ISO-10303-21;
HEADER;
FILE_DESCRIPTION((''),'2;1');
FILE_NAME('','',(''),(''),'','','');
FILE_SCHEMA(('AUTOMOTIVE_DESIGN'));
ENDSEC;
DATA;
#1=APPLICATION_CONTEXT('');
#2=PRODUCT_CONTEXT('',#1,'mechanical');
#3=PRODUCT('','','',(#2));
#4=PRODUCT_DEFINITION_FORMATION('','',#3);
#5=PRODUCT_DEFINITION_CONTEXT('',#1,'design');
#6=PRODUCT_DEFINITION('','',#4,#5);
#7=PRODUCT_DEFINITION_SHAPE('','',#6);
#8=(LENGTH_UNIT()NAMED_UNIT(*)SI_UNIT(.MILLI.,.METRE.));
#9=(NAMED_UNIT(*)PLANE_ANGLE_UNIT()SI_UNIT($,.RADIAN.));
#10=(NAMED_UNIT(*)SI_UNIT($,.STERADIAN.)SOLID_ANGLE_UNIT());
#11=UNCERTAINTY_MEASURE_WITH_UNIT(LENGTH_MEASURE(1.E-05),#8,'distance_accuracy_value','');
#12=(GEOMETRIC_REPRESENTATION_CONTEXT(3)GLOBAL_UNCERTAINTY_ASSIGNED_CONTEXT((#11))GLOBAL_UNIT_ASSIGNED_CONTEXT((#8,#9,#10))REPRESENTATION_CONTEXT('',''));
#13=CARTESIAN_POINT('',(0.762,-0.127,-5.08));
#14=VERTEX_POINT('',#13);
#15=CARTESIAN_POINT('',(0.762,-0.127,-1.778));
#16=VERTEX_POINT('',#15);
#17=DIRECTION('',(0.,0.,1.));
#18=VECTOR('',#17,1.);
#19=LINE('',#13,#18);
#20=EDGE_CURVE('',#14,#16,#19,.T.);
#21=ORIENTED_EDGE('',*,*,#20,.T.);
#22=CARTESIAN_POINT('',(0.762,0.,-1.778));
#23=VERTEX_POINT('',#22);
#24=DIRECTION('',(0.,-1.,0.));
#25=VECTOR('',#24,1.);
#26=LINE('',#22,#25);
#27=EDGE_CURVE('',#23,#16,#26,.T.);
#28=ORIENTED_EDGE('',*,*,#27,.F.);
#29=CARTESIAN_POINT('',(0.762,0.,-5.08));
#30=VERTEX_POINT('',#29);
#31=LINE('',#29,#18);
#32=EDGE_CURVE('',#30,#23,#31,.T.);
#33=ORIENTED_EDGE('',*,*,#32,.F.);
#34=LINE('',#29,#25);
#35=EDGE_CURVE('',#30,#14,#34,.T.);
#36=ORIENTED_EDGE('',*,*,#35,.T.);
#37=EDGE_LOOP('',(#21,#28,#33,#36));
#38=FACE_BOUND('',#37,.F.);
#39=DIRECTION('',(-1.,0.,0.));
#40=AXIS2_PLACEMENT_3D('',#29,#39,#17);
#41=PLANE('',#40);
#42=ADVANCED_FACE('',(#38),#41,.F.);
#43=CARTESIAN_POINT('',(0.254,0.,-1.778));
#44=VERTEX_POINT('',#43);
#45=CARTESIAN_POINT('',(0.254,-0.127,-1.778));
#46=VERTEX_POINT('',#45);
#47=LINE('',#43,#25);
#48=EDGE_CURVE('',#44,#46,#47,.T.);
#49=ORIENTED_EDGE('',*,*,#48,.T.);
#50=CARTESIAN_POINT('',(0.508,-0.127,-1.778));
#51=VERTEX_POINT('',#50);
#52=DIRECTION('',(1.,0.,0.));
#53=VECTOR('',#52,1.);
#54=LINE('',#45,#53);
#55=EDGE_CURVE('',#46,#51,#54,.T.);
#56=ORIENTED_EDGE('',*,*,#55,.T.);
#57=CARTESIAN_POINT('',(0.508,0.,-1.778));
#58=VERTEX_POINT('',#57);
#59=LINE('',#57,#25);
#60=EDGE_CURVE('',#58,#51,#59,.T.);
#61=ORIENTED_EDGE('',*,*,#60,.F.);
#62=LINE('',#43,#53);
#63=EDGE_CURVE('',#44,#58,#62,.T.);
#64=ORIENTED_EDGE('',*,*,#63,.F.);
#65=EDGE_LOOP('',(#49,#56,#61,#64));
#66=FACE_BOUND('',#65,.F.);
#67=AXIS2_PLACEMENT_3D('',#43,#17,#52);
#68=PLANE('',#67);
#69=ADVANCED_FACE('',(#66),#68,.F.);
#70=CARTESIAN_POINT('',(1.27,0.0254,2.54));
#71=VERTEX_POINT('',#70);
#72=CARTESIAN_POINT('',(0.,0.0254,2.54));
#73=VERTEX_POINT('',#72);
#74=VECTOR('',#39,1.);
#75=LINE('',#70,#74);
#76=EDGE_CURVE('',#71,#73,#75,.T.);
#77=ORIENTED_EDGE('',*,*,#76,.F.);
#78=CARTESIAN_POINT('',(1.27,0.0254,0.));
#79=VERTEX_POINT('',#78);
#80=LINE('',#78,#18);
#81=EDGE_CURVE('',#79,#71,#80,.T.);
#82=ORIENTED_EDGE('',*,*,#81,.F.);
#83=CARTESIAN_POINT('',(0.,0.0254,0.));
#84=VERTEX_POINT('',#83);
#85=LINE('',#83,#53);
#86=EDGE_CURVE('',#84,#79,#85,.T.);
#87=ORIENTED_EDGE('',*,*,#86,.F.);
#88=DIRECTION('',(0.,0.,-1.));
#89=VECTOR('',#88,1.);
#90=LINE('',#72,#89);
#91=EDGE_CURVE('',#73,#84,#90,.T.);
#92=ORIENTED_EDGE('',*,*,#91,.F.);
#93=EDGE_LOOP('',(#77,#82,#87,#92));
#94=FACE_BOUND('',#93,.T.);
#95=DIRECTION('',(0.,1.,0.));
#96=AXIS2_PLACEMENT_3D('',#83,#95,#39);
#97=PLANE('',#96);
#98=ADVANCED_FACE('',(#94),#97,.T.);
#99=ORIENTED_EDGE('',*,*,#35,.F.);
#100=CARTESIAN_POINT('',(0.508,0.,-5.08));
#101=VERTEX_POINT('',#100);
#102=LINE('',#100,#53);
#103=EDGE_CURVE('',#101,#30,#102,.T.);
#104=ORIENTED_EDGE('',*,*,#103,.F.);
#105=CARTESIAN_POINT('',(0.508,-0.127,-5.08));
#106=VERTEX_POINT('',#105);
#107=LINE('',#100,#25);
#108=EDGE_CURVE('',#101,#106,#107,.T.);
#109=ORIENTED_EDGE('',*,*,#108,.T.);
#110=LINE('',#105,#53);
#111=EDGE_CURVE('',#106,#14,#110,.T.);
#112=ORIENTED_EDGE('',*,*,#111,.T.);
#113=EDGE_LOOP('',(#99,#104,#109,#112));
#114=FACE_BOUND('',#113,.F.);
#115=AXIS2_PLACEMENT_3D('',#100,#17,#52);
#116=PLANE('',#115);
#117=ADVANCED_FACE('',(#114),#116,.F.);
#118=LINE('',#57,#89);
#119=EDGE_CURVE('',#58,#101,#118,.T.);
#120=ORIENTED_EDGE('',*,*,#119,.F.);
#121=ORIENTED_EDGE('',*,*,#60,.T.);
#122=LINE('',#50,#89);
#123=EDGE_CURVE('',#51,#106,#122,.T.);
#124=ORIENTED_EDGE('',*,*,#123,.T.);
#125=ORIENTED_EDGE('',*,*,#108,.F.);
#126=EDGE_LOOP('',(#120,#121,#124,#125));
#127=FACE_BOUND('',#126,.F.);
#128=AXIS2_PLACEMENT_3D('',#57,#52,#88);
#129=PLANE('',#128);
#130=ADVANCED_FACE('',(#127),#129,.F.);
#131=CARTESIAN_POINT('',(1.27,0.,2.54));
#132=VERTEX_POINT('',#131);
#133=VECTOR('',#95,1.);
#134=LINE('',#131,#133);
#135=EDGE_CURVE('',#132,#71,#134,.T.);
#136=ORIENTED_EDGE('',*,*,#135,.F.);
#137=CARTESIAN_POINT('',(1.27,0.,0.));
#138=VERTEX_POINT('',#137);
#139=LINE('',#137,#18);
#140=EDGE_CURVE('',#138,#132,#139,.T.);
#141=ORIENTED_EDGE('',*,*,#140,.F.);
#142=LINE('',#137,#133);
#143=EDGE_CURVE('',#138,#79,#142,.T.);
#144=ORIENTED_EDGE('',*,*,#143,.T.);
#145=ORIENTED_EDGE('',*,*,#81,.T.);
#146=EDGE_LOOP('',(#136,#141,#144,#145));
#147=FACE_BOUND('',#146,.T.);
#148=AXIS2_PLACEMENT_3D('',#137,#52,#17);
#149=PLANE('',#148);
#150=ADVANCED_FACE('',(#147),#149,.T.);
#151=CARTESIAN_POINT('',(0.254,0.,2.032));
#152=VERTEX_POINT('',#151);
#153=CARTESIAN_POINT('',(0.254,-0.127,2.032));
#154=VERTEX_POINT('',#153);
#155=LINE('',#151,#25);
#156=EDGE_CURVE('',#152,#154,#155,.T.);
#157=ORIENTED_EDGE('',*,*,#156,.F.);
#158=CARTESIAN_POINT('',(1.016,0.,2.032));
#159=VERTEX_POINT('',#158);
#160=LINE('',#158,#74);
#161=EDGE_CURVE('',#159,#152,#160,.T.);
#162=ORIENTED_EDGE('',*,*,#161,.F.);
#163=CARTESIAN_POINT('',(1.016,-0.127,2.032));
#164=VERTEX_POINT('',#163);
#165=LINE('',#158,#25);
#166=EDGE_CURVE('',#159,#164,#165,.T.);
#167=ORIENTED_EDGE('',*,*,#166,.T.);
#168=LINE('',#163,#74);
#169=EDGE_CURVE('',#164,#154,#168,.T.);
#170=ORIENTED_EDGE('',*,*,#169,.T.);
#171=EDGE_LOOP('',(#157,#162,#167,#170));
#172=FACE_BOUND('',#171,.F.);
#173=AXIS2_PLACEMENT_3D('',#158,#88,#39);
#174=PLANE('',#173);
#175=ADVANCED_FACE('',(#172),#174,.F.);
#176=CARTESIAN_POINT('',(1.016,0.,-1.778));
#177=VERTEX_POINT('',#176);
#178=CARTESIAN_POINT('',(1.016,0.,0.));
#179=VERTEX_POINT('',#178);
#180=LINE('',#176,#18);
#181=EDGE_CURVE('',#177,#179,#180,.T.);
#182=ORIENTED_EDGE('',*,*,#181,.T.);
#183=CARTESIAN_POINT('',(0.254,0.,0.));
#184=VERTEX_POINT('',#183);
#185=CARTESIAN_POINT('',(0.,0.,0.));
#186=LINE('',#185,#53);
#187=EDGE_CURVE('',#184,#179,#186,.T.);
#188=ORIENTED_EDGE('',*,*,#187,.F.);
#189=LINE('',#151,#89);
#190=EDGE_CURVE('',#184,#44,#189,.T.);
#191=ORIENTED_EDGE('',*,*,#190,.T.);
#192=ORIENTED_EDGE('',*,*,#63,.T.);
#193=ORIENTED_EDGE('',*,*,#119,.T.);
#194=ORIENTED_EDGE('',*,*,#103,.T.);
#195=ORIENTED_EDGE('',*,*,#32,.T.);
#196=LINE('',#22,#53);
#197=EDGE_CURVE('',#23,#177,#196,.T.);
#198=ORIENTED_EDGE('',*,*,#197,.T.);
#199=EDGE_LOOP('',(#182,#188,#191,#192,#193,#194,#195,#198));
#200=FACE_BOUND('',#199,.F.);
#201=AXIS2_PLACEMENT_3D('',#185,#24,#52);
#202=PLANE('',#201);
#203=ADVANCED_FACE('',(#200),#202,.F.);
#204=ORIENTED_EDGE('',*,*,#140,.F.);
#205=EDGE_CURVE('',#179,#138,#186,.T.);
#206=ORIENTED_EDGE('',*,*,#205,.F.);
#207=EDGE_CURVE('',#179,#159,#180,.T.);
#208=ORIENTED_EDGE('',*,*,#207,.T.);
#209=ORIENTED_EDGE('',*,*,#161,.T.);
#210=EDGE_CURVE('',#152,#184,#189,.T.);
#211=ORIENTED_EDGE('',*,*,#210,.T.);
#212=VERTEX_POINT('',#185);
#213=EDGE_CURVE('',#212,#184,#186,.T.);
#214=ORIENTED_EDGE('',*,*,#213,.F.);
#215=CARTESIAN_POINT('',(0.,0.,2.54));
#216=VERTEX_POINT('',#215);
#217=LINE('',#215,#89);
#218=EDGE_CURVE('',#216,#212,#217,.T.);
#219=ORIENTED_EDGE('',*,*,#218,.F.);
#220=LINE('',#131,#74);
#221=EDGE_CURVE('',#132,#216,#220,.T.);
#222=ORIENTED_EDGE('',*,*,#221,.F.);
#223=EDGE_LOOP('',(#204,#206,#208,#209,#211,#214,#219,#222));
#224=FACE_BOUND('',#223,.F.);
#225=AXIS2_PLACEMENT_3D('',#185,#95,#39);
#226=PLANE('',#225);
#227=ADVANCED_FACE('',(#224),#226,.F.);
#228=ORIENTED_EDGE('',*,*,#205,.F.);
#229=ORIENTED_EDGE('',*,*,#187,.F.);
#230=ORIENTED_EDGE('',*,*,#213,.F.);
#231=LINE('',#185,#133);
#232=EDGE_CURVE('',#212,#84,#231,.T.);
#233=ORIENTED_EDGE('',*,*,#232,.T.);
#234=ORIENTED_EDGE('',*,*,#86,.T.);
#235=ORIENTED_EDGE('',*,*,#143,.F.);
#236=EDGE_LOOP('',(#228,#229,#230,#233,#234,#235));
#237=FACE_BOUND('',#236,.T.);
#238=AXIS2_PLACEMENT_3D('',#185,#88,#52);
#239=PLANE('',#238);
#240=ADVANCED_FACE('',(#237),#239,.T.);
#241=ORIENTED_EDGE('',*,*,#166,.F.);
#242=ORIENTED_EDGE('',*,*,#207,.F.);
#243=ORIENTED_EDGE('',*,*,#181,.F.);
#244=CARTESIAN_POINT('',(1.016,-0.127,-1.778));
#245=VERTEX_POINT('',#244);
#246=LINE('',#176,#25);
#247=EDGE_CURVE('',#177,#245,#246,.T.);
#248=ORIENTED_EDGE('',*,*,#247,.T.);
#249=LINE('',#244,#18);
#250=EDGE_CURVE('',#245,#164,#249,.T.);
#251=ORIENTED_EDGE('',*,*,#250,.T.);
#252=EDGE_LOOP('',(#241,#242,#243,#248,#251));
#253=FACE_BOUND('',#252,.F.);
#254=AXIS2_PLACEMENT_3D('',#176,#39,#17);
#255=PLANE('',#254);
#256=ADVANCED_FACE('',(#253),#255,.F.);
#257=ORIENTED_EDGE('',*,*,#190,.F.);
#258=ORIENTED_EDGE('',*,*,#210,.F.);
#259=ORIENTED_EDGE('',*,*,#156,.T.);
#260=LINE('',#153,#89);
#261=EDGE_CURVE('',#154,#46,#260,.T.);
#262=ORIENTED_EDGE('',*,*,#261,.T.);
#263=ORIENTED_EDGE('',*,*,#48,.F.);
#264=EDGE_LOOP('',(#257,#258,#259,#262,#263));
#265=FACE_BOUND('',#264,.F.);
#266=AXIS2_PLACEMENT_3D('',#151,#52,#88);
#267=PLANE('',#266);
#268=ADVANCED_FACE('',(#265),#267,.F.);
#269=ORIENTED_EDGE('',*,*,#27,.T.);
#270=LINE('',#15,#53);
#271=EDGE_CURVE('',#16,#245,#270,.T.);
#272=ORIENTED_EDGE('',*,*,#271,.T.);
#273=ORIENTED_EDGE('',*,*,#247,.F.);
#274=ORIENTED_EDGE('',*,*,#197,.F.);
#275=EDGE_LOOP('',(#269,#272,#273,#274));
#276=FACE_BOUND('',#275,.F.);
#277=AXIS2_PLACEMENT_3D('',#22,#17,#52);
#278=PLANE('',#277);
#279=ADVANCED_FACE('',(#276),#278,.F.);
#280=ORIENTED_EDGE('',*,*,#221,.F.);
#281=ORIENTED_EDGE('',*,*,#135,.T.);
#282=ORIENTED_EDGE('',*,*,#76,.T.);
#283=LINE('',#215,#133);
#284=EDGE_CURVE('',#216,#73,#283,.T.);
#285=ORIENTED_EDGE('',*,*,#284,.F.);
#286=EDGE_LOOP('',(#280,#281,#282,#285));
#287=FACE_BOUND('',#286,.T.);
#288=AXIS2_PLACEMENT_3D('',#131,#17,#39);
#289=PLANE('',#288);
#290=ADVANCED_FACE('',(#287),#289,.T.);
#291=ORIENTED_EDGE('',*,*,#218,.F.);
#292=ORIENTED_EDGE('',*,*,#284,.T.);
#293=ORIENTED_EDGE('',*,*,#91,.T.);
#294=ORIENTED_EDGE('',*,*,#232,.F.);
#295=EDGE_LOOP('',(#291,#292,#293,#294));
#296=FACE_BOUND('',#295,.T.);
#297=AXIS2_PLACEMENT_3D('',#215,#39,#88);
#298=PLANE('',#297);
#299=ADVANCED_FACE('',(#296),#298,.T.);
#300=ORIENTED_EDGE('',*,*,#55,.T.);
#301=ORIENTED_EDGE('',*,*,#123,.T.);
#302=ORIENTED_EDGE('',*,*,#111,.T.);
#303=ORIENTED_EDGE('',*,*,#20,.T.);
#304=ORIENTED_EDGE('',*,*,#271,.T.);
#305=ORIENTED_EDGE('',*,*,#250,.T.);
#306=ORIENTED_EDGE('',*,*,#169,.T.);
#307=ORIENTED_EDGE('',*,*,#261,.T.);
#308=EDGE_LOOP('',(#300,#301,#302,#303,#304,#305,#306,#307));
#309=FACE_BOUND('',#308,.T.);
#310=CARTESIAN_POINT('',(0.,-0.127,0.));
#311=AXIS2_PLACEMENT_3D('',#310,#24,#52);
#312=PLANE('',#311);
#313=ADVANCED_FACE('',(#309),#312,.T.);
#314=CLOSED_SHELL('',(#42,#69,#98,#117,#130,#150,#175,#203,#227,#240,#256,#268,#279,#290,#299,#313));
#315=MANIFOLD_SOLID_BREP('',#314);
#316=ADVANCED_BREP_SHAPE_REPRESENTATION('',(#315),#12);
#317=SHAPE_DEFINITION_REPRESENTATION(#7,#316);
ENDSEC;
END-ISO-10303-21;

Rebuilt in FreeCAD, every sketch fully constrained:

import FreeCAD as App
import Part
import Sketcher
from FreeCAD import Vector
Q = App.Units.Quantity


def add_polygon(sketch, points):
    """Adds a closed chain of lines whose ends are joined by coincident constraints."""
    first, n = sketch.GeometryCount, len(points)
    for a, b in zip(points, points[1:] + points[:1]):
        sketch.addGeometry(Part.LineSegment(App.Vector(*a, 0), App.Vector(*b, 0)), False)
    for i in range(n):
        sketch.addConstraint(Sketcher.Constraint("Coincident", first + i, 2, first + (i + 1) % n, 1))

doc = App.newDocument("Part")
params = doc.addObject("Spreadsheet::Sheet", "Params")
for row, (alias, value) in enumerate([
    ("sketch1_height", "0.1 in"),
    ("sketch1_width", "0.05 in"),
    ("pad1_length", "0.001 in"),
    ("sketch2_width", "0.03 in"),
    ("sketch2_height", "0.15 in"),
    ("sketch2_height2", "0.13 in"),
    ("pad2_length", "0.005 in"),
], start=1):
    params.set(f"A{row}", alias)
    params.set(f"B{row}", "=" + value)
    params.setAlias(f"B{row}", alias)

body = doc.addObject("PartDesign::Body", "Body")

sketch1 = body.newObject("Sketcher::SketchObject", "Sketch")
sketch1.AttachmentSupport = (doc.getObject("XZ_Plane"), [""])
sketch1.MapMode = "FlatFace"
add_polygon(sketch1, [(1.27, 0), (0, 0), (0, 2.54), (1.27, 2.54)])
sketch1.addConstraint([
    Sketcher.Constraint("Horizontal", 0),
    Sketcher.Constraint("Vertical", 1),
    Sketcher.Constraint("Horizontal", 2),
    Sketcher.Constraint("Vertical", 3),
    Sketcher.Constraint("Coincident", 0, 2, -1, 1),
    Sketcher.Constraint("DistanceY", 1, 1, 1, 2, Q("0.1 in")),
    Sketcher.Constraint("DistanceX", 0, 2, 0, 1, Q("0.05 in")),
])
sketch1.setExpression("Constraints[9]", "Params.sketch1_height")
sketch1.setExpression("Constraints[10]", "Params.sketch1_width")
pad1 = body.newObject("PartDesign::Pad", "Pad")
pad1.Profile = sketch1
pad1.setExpression("Length", "Params.pad1_length")
pad1.Reversed = True

sketch2 = body.newObject("Sketcher::SketchObject", "Sketch001")
sketch2.AttachmentSupport = (doc.getObject("XZ_Plane"), [""])
sketch2.MapMode = "FlatFace"
add_polygon(sketch2, [(1.016, 2.032), (0.254, 2.032), (0.254, -1.778), (0.508, -1.778), (0.508, -5.08), (0.762, -5.08), (0.762, -1.778), (1.016, -1.778)])
sketch2.addConstraint([
    Sketcher.Constraint("Horizontal", 0),
    Sketcher.Constraint("Vertical", 1),
    Sketcher.Constraint("Horizontal", 2),
    Sketcher.Constraint("Vertical", 3),
    Sketcher.Constraint("Horizontal", 4),
    Sketcher.Constraint("Vertical", 5),
    Sketcher.Constraint("Horizontal", 6),
    Sketcher.Constraint("Vertical", 7),
    Sketcher.Constraint("Horizontal", 2, 2, 5, 2),
    Sketcher.Constraint("Equal", 2, 4),
    Sketcher.Constraint("Equal", 4, 6),
    Sketcher.Constraint("DistanceX", 0, 2, 0, 1, Q("0.03 in")),
    Sketcher.Constraint("DistanceY", 1, 2, 1, 1, Q("0.15 in")),
    Sketcher.Constraint("DistanceY", 3, 2, 3, 1, Q("0.13 in")),
    Sketcher.Constraint("DistanceX", -1, 1, 0, 2, Q("0.01 in")),
    Sketcher.Constraint("DistanceY", 3, 2, -1, 1, Q("0.2 in")),
])
sketch2.setExpression("Constraints[19]", "Params.sketch2_width")
sketch2.setExpression("Constraints[20]", "Params.sketch2_height")
sketch2.setExpression("Constraints[21]", "Params.sketch2_height2")
pad2 = body.newObject("PartDesign::Pad", "Pad001")
pad2.Profile = sketch2
pad2.setExpression("Length", "Params.pad2_length")

doc.recompute()
